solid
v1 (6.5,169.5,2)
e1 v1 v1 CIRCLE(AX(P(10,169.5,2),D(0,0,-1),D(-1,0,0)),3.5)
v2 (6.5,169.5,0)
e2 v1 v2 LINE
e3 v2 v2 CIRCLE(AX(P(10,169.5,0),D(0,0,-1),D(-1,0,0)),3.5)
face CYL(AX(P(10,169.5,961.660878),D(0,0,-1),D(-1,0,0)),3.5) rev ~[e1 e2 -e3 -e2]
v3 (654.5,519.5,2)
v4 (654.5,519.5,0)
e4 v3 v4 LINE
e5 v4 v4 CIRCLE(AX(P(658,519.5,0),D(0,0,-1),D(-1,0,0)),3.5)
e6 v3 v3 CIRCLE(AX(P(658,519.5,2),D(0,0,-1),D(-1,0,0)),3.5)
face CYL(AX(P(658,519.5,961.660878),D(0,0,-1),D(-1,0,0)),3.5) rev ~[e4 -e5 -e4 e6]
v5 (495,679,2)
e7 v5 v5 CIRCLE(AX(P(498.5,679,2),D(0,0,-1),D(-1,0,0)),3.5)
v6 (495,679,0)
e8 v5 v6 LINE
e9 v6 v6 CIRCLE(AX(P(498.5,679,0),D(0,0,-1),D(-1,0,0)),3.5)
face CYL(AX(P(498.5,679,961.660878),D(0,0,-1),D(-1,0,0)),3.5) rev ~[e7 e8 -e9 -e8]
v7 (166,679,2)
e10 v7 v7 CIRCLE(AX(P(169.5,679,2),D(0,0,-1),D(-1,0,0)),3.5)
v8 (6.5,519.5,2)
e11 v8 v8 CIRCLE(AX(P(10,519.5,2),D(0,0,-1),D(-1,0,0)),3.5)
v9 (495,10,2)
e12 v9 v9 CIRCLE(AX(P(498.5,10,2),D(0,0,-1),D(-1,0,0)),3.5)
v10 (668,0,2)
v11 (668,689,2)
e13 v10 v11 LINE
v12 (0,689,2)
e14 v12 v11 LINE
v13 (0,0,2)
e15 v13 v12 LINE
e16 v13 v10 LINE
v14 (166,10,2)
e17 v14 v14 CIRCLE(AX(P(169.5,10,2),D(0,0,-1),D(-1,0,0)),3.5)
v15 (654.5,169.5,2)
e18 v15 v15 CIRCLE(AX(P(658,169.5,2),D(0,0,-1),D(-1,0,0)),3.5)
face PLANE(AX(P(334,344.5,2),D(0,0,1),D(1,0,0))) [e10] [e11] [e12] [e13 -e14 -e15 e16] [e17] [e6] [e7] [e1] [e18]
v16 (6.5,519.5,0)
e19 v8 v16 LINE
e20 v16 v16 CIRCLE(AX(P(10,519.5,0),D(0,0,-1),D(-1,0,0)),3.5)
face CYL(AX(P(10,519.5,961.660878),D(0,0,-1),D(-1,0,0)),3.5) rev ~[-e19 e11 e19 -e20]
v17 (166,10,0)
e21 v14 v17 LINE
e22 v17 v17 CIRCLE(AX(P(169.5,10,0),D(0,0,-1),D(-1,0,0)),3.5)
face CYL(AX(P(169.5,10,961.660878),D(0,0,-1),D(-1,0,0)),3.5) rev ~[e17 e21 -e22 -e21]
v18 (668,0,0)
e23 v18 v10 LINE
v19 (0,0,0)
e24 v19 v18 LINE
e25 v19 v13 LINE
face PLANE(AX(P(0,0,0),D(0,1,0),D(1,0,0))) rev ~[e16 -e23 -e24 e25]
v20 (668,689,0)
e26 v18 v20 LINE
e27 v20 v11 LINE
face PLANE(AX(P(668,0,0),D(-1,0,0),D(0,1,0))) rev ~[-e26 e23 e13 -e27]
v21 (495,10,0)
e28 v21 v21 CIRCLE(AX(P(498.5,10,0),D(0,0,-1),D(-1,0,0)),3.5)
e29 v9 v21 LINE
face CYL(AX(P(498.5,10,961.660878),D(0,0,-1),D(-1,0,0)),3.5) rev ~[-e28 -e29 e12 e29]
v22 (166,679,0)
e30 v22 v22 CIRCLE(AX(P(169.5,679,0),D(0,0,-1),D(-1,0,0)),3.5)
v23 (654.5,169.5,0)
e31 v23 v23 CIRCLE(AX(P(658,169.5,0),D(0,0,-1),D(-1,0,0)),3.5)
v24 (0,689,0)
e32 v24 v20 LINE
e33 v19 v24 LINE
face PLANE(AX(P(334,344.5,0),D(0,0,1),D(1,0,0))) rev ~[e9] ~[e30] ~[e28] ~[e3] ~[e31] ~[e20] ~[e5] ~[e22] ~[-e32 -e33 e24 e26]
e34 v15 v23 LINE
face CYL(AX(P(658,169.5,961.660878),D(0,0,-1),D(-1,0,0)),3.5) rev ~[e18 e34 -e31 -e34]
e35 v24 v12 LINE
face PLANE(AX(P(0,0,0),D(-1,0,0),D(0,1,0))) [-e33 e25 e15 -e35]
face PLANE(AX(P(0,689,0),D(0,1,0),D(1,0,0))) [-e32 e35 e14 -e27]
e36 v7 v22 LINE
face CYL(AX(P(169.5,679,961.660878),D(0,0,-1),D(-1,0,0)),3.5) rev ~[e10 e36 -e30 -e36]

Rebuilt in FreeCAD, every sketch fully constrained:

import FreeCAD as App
import Part
import Sketcher
from FreeCAD import Vector

doc = App.newDocument("Part")
body = doc.addObject("PartDesign::Body", "Body")

# Sketch on XY plane
sketch1 = doc.addObject("Sketcher::SketchObject", "Sketch")
body.addObject(sketch1)
sketch1.AttachmentSupport = (doc.XY_Plane, [""])
sketch1.MapMode = "FlatFace"
sketch1.addGeometry(Part.LineSegment(Vector(0, 689, 0), Vector(0, 0, 0)), False)
sketch1.addGeometry(Part.LineSegment(Vector(0, 0, 0), Vector(668, 0, 0)), False)
sketch1.addGeometry(Part.LineSegment(Vector(668, 0, 0), Vector(668, 689, 0)), False)
sketch1.addGeometry(Part.LineSegment(Vector(668, 689, 0), Vector(0, 689, 0)), False)
sketch1.addConstraint(Sketcher.Constraint("Coincident", 0, 2, 1, 1))
sketch1.addConstraint(Sketcher.Constraint("Coincident", 1, 2, 2, 1))
sketch1.addConstraint(Sketcher.Constraint("Coincident", 2, 2, 3, 1))
sketch1.addConstraint(Sketcher.Constraint("Coincident", 3, 2, 0, 1))
sketch1.addConstraint(Sketcher.Constraint("Vertical", 0))
sketch1.addConstraint(Sketcher.Constraint("Horizontal", 1))
sketch1.addConstraint(Sketcher.Constraint("Vertical", 2))
sketch1.addConstraint(Sketcher.Constraint("Horizontal", 3))
sketch1.addConstraint(Sketcher.Constraint("Coincident", 0, 2, -1, 1))
sketch1.addConstraint(Sketcher.Constraint("DistanceX", 1, 1, 1, 2, 668.0))
sketch1.addConstraint(Sketcher.Constraint("DistanceY", 0, 2, 0, 1, 689.0))
pad1 = doc.addObject("PartDesign::Pad", "Pad")
body.addObject(pad1)
pad1.Profile = sketch1
pad1.Length = 2

# Sketch on XY plane
sketch2 = doc.addObject("Sketcher::SketchObject", "Sketch001")
body.addObject(sketch2)
sketch2.AttachmentSupport = (doc.XY_Plane, [""])
sketch2.MapMode = "FlatFace"
sketch2.AttachmentOffset = App.Placement(Vector(0, 0, 2), App.Rotation())
sketch2.addGeometry(Part.Circle(Vector(10, 519.5, 0), Vector(0, 0, 1), 3.5), False)
sketch2.addGeometry(Part.Circle(Vector(169.5, 679, 0), Vector(0, 0, 1), 3.5), False)
sketch2.addGeometry(Part.Circle(Vector(498.5, 679, 0), Vector(0, 0, 1), 3.5), False)
sketch2.addGeometry(Part.Circle(Vector(658, 519.5, 0), Vector(0, 0, 1), 3.5), False)
sketch2.addGeometry(Part.Circle(Vector(658, 169.5, 0), Vector(0, 0, 1), 3.5), False)
sketch2.addGeometry(Part.Circle(Vector(498.5, 10, 0), Vector(0, 0, 1), 3.5), False)
sketch2.addGeometry(Part.Circle(Vector(169.5, 10, 0), Vector(0, 0, 1), 3.5), False)
sketch2.addGeometry(Part.Circle(Vector(10, 169.5, 0), Vector(0, 0, 1), 3.5), False)
sketch2.addConstraint(Sketcher.Constraint("Equal", 0, 1))
sketch2.addConstraint(Sketcher.Constraint("Equal", 1, 2))
sketch2.addConstraint(Sketcher.Constraint("Equal", 2, 3))
sketch2.addConstraint(Sketcher.Constraint("Equal", 3, 4))
sketch2.addConstraint(Sketcher.Constraint("Equal", 4, 5))
sketch2.addConstraint(Sketcher.Constraint("Equal", 5, 6))
sketch2.addConstraint(Sketcher.Constraint("Equal", 6, 7))
sketch2.addConstraint(Sketcher.Constraint("Horizontal", 1, 3, 2, 3))
sketch2.addConstraint(Sketcher.Constraint("Horizontal", 0, 3, 3, 3))
sketch2.addConstraint(Sketcher.Constraint("Horizontal", 5, 3, 6, 3))
sketch2.addConstraint(Sketcher.Constraint("Horizontal", 4, 3, 7, 3))
sketch2.addConstraint(Sketcher.Constraint("Vertical", 3, 3, 4, 3))
sketch2.addConstraint(Sketcher.Constraint("Vertical", 2, 3, 5, 3))
sketch2.addConstraint(Sketcher.Constraint("Vertical", 1, 3, 6, 3))
sketch2.addConstraint(Sketcher.Constraint("Vertical", 0, 3, 7, 3))
sketch2.addConstraint(Sketcher.Constraint("Diameter", 0, 7.0))
sketch2.addConstraint(Sketcher.Constraint("DistanceX", -1, 1, 0, 3, 10.0))
sketch2.addConstraint(Sketcher.Constraint("DistanceY", -1, 1, 1, 3, 679.0))
sketch2.addConstraint(Sketcher.Constraint("DistanceX", -1, 1, 3, 3, 658.0))
sketch2.addConstraint(Sketcher.Constraint("DistanceY", -1, 1, 5, 3, 10.0))
sketch2.addConstraint(Sketcher.Constraint("DistanceX", 1, 3, 2, 3, 329.0))
sketch2.addConstraint(Sketcher.Constraint("DistanceY", 4, 3, 3, 3, 350.0))
sketch2.addConstraint(Sketcher.Constraint("DistanceY", -1, 1, 0, 3, 519.5))
sketch2.addConstraint(Sketcher.Constraint("DistanceX", -1, 1, 1, 3, 169.5))
doc.recompute()
hole = doc.addObject("PartDesign::Hole", "Hole")
body.addObject(hole)
hole.Profile = sketch2
hole.ThreadType = "None"
hole.Diameter = 7
hole.DepthType = "ThroughAll"

doc.recompute()
